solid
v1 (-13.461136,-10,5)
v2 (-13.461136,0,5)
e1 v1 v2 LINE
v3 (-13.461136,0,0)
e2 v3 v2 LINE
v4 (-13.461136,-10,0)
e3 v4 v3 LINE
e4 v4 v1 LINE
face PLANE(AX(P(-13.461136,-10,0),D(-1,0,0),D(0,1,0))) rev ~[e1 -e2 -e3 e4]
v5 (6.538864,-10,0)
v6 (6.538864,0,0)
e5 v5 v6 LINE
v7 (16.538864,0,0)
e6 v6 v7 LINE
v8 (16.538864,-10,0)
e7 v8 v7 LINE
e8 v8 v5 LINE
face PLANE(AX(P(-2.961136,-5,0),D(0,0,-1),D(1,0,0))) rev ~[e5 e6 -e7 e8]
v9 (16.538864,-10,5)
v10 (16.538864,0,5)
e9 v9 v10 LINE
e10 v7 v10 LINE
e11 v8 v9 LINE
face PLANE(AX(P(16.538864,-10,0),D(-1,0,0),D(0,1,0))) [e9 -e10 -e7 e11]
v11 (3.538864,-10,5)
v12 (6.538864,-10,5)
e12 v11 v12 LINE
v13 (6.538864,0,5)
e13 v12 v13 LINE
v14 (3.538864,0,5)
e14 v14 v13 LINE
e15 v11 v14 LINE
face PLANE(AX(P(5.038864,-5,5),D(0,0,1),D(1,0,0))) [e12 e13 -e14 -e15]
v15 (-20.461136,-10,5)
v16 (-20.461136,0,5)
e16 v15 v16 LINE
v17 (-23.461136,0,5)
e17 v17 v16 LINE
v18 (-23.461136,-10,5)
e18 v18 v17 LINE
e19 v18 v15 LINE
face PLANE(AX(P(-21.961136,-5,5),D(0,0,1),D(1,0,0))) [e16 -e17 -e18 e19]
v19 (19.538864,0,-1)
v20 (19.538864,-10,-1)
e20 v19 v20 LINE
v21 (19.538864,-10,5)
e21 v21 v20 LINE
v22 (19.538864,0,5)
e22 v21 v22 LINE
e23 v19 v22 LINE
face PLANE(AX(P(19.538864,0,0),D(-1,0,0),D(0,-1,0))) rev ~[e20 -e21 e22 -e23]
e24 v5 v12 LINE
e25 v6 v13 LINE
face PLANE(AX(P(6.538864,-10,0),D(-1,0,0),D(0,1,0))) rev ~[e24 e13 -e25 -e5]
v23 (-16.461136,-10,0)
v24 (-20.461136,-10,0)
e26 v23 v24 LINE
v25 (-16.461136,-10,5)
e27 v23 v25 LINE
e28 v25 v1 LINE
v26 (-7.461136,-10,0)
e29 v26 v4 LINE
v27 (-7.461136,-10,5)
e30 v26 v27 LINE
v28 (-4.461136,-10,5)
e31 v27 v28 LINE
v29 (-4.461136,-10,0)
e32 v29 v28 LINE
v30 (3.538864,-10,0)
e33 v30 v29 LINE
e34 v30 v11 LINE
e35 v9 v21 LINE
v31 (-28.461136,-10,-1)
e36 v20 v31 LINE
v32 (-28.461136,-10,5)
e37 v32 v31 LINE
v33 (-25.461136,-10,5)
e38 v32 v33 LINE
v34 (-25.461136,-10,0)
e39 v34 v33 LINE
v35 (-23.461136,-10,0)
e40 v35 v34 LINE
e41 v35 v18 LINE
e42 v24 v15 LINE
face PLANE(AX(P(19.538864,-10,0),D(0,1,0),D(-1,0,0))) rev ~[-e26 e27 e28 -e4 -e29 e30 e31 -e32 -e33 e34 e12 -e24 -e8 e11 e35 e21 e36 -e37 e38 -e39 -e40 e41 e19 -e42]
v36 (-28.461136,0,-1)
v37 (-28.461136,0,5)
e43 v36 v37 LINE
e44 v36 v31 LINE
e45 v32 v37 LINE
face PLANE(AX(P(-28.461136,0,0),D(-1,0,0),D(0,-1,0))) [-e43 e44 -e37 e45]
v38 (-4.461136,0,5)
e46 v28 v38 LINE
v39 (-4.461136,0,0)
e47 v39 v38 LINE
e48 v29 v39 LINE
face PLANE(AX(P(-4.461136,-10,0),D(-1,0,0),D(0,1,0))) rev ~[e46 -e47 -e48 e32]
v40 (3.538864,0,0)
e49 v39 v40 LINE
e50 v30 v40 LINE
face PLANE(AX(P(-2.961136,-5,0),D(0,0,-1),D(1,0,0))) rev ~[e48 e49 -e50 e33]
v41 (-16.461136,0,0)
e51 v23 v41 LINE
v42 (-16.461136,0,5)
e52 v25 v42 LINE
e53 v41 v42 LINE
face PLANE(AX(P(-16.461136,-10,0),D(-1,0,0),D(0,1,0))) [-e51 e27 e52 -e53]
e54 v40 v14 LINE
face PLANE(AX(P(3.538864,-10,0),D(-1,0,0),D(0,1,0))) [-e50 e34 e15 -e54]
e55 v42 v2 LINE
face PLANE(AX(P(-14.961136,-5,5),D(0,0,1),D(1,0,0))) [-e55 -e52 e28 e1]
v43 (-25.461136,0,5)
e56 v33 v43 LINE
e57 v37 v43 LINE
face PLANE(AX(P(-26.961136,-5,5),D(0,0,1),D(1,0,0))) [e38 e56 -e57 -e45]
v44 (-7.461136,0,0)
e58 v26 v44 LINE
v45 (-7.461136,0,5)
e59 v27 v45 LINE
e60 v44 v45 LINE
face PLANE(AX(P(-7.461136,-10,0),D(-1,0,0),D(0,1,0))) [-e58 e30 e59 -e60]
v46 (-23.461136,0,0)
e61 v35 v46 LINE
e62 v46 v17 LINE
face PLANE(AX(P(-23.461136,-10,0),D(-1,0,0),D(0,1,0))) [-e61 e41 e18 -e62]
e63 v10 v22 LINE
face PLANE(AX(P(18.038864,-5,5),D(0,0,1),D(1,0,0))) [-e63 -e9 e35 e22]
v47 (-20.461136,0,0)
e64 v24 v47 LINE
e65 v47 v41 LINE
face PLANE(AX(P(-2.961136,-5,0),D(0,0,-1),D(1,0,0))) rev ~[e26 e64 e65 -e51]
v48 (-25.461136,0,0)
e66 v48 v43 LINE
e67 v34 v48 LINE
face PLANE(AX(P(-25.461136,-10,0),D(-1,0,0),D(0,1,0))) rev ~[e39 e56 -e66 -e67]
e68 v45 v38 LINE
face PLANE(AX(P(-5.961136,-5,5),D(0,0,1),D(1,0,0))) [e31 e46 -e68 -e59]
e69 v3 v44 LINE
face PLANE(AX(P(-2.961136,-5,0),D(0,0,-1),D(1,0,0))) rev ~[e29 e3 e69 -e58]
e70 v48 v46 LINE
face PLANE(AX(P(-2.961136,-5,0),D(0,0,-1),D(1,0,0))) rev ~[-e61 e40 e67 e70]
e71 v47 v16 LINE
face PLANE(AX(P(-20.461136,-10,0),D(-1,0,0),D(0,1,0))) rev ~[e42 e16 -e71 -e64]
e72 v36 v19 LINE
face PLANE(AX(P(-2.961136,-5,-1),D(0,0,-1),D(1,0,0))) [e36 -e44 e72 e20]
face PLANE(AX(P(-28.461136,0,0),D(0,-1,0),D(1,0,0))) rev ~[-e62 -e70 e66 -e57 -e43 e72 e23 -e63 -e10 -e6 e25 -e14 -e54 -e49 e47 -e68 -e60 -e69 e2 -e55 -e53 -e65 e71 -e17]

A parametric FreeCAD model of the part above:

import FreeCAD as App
import Part
import Sketcher
from FreeCAD import Vector
Q = App.Units.Quantity

doc = App.newDocument("Part")
body = doc.addObject("PartDesign::Body", "Body")
body.AllowCompound = True

# Sketch on XY plane
sketch1 = body.newObject("Sketcher::SketchObject", "Sketch")
sketch1.AttachmentSupport = (doc.getObject("XY_Plane"), [""])
sketch1.MapMode = "FlatFace"
sketch1.addGeometry([
    Part.LineSegment(Vector(-28.5, 0, 0), Vector(-28.5, -10, 0)),  # 0
    Part.LineSegment(Vector(-28.5, -10, 0), Vector(-25.5, -10, 0)),  # 1
    Part.LineSegment(Vector(-25.5, -10, 0), Vector(-25.5, 0, 0)),  # 2
    Part.LineSegment(Vector(-25.5, 0, 0), Vector(-28.5, 0, 0)),  # 3
    Part.LineSegment(Vector(-23.5, 0, 0), Vector(-23.5, -10, 0)),  # 4
    Part.LineSegment(Vector(-23.5, -10, 0), Vector(-20.5, -10, 0)),  # 5
    Part.LineSegment(Vector(-20.5, -10, 0), Vector(-20.5, 0, 0)),  # 6
    Part.LineSegment(Vector(-20.5, 0, 0), Vector(-23.5, 0, 0)),  # 7
    Part.LineSegment(Vector(-16.5, 0, 0), Vector(-16.5, -10, 0)),  # 8
    Part.LineSegment(Vector(-16.5, -10, 0), Vector(-13.5, -10, 0)),  # 9
    Part.LineSegment(Vector(-13.5, -10, 0), Vector(-13.5, 0, 0)),  # 10
    Part.LineSegment(Vector(-13.5, 0, 0), Vector(-16.5, 0, 0)),  # 11
    Part.LineSegment(Vector(-7.5, 0, 0), Vector(-7.5, -10, 0)),  # 12
    Part.LineSegment(Vector(-7.5, -10, 0), Vector(-4.5, -10, 0)),  # 13
    Part.LineSegment(Vector(-4.5, -10, 0), Vector(-4.5, 0, 0)),  # 14
    Part.LineSegment(Vector(-4.5, 0, 0), Vector(-7.5, 0, 0)),  # 15
    Part.LineSegment(Vector(3.5, 0, 0), Vector(3.5, -10, 0)),  # 16
    Part.LineSegment(Vector(3.5, -10, 0), Vector(6.5, -10, 0)),  # 17
    Part.LineSegment(Vector(6.5, -10, 0), Vector(6.5, 0, 0)),  # 18
    Part.LineSegment(Vector(6.5, 0, 0), Vector(3.5, 0, 0)),  # 19
    Part.LineSegment(Vector(16.5, 0, 0), Vector(16.5, -10, 0)),  # 20
    Part.LineSegment(Vector(16.5, -10, 0), Vector(19.5, -10, 0)),  # 21
    Part.LineSegment(Vector(19.5, -10, 0), Vector(19.5, 0, 0)),  # 22
    Part.LineSegment(Vector(19.5, 0, 0), Vector(16.5, 0, 0)),  # 23
], False)
sketch1.addConstraint([
    Sketcher.Constraint("Coincident", 0, 2, 1, 1),
    Sketcher.Constraint("Coincident", 1, 2, 2, 1),
    Sketcher.Constraint("Coincident", 2, 2, 3, 1),
    Sketcher.Constraint("Coincident", 3, 2, 0, 1),
    Sketcher.Constraint("Coincident", 4, 2, 5, 1),
    Sketcher.Constraint("Coincident", 5, 2, 6, 1),
    Sketcher.Constraint("Coincident", 6, 2, 7, 1),
    Sketcher.Constraint("Coincident", 7, 2, 4, 1),
    Sketcher.Constraint("Coincident", 8, 2, 9, 1),
    Sketcher.Constraint("Coincident", 9, 2, 10, 1),
    Sketcher.Constraint("Coincident", 10, 2, 11, 1),
    Sketcher.Constraint("Coincident", 11, 2, 8, 1),
    Sketcher.Constraint("Coincident", 12, 2, 13, 1),
    Sketcher.Constraint("Coincident", 13, 2, 14, 1),
    Sketcher.Constraint("Coincident", 14, 2, 15, 1),
    Sketcher.Constraint("Coincident", 15, 2, 12, 1),
    Sketcher.Constraint("Coincident", 16, 2, 17, 1),
    Sketcher.Constraint("Coincident", 17, 2, 18, 1),
    Sketcher.Constraint("Coincident", 18, 2, 19, 1),
    Sketcher.Constraint("Coincident", 19, 2, 16, 1),
    Sketcher.Constraint("Coincident", 20, 2, 21, 1),
    Sketcher.Constraint("Coincident", 21, 2, 22, 1),
    Sketcher.Constraint("Coincident", 22, 2, 23, 1),
    Sketcher.Constraint("Coincident", 23, 2, 20, 1),
    Sketcher.Constraint("Vertical", 0),
    Sketcher.Constraint("Horizontal", 1),
    Sketcher.Constraint("Vertical", 2),
    Sketcher.Constraint("Horizontal", 3),
    Sketcher.Constraint("Vertical", 4),
    Sketcher.Constraint("Horizontal", 5),
    Sketcher.Constraint("Vertical", 6),
    Sketcher.Constraint("Horizontal", 7),
    Sketcher.Constraint("Vertical", 8),
    Sketcher.Constraint("Horizontal", 9),
    Sketcher.Constraint("Vertical", 10),
    Sketcher.Constraint("Horizontal", 11),
    Sketcher.Constraint("Vertical", 12),
    Sketcher.Constraint("Horizontal", 13),
    Sketcher.Constraint("Vertical", 14),
    Sketcher.Constraint("Horizontal", 15),
    Sketcher.Constraint("Vertical", 16),
    Sketcher.Constraint("Horizontal", 17),
    Sketcher.Constraint("Vertical", 18),
    Sketcher.Constraint("Horizontal", 19),
    Sketcher.Constraint("Vertical", 20),
    Sketcher.Constraint("Horizontal", 21),
    Sketcher.Constraint("Vertical", 22),
    Sketcher.Constraint("Horizontal", 23),
    Sketcher.Constraint("PointOnObject", 2, 2, -1),
    Sketcher.Constraint("PointOnObject", 6, 2, -1),
    Sketcher.Constraint("PointOnObject", 10, 2, -1),
    Sketcher.Constraint("PointOnObject", 14, 2, -1),
    Sketcher.Constraint("PointOnObject", 18, 2, -1),
    Sketcher.Constraint("PointOnObject", 22, 2, -1),
    Sketcher.Constraint("Horizontal", 1, 2, 4, 2),
    Sketcher.Constraint("Horizontal", 5, 2, 8, 2),
    Sketcher.Constraint("Horizontal", 9, 2, 12, 2),
    Sketcher.Constraint("Horizontal", 13, 2, 16, 2),
    Sketcher.Constraint("Horizontal", 17, 2, 20, 2),
    Sketcher.Constraint("Equal", 3, 5),
    Sketcher.Constraint("Equal", 7, 9),
    Sketcher.Constraint("Equal", 11, 13),
    Sketcher.Constraint("Equal", 15, 17),
    Sketcher.Constraint("Equal", 19, 21),
    Sketcher.Constraint("DistanceX", 1, 1, 1, 2, Q("3 mm")),
    Sketcher.Constraint("DistanceY", 0, 2, 0, 1, Q("10 mm")),
    Sketcher.Constraint("DistanceX", 1, 2, 4, 2, Q("2 mm")),
    Sketcher.Constraint("DistanceX", 5, 2, 8, 2, Q("4 mm")),
    Sketcher.Constraint("DistanceX", 9, 2, 12, 2, Q("6 mm")),
    Sketcher.Constraint("DistanceX", 13, 2, 16, 2, Q("8 mm")),
    Sketcher.Constraint("DistanceX", 17, 2, 20, 2, Q("10 mm")),
    Sketcher.Constraint("DistanceX", 0, 2, -1, 1, Q("28.461136 mm")),
])
pad1 = body.newObject("PartDesign::Pad", "Pad")
pad1.Profile = sketch1
pad1.Length = 5

# Sketch on XY plane
sketch2 = body.newObject("Sketcher::SketchObject", "Sketch001")
sketch2.AttachmentSupport = (doc.getObject("XY_Plane"), [""])
sketch2.MapMode = "FlatFace"
sketch2.addGeometry([
    Part.LineSegment(Vector(20, 0, 0), Vector(20, -10, 0)),
    Part.LineSegment(Vector(20, -10, 0), Vector(-28, -10, 0)),
    Part.LineSegment(Vector(-28, -10, 0), Vector(-28, 0, 0)),
    Part.LineSegment(Vector(-28, 0, 0), Vector(20, 0, 0)),
], False)
sketch2.addConstraint([
    Sketcher.Constraint("Coincident", 0, 2, 1, 1),
    Sketcher.Constraint("Coincident", 1, 2, 2, 1),
    Sketcher.Constraint("Coincident", 2, 2, 3, 1),
    Sketcher.Constraint("Coincident", 3, 2, 0, 1),
    Sketcher.Constraint("Vertical", 0),
    Sketcher.Constraint("Horizontal", 1),
    Sketcher.Constraint("Vertical", 2),
    Sketcher.Constraint("Horizontal", 3),
    Sketcher.Constraint("PointOnObject", 2, 2, -1),
    Sketcher.Constraint("DistanceX", 1, 2, 1, 1, Q("48 mm")),
    Sketcher.Constraint("DistanceY", 0, 2, 0, 1, Q("10 mm")),
    Sketcher.Constraint("DistanceX", -1, 1, 0, 2, Q("19.538864 mm")),
])
pad2 = body.newObject("PartDesign::Pad", "Pad001")
pad2.Profile = sketch2
pad2.Length = 1
pad2.Reversed = True

doc.recompute()
